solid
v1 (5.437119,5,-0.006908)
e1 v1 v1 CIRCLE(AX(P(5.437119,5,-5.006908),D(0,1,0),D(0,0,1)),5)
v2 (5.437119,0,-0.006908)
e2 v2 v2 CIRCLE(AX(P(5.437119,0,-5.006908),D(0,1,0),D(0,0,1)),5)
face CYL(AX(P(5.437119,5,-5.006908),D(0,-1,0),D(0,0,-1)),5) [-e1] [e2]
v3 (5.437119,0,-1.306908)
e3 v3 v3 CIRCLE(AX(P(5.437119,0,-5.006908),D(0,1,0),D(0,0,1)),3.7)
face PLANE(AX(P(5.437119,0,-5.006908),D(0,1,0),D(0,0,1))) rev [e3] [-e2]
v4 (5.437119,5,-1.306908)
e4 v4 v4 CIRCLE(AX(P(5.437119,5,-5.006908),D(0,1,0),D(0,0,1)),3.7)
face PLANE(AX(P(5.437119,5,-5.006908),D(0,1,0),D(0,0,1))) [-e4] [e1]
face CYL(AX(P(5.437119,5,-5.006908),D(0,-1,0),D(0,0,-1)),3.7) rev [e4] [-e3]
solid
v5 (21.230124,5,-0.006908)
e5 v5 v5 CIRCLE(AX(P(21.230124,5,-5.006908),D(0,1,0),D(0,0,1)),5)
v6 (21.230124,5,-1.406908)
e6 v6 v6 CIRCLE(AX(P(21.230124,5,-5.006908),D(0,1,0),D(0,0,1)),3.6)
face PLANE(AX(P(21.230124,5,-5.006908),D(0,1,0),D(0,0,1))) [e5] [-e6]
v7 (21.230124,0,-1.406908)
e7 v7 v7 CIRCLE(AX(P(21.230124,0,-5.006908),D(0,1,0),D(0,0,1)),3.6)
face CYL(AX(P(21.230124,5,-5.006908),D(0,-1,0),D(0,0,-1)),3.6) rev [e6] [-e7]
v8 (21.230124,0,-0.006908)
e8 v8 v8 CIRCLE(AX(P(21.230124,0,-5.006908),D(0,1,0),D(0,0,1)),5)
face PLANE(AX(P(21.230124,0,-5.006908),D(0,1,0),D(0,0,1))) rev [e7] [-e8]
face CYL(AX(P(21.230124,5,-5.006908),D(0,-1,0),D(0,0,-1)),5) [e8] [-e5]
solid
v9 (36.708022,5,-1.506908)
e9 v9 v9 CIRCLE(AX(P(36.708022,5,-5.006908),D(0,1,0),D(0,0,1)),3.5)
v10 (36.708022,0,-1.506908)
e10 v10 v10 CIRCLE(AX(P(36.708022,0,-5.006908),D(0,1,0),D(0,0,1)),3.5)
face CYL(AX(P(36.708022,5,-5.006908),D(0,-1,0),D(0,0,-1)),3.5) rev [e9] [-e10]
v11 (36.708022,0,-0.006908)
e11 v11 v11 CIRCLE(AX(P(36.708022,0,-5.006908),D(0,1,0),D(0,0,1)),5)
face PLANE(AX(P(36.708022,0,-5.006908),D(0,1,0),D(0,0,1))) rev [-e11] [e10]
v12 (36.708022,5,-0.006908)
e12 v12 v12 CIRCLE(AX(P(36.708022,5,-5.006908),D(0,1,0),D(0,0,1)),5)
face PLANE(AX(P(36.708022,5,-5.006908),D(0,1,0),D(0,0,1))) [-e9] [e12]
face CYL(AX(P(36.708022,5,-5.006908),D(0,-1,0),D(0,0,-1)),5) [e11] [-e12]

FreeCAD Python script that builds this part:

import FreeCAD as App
import Part
import Sketcher

V = App.Vector

doc = App.newDocument("Part")
body = doc.addObject("PartDesign::Body", "Body")

# Sketch on XZ plane
sketch1 = body.newObject("Sketcher::SketchObject", "Sketch")
sketch1.AttachmentSupport = (doc.getObject("XZ_Plane"), [""])
sketch1.MapMode = "FlatFace"
sketch1.addGeometry([
    Part.Circle(V(5.4, -5, 0), V(0, 0, 1), 5),
    Part.Circle(V(5.4, -5, 0), V(0, 0, 1), 3.7),
], False)
sketch1.addConstraint([
    Sketcher.Constraint("Coincident", 1, 3, 0, 3),
    Sketcher.Constraint("Diameter", 0, 10.0),
    Sketcher.Constraint("Diameter", 1, 7.4),
    Sketcher.Constraint("DistanceX", -1, 1, 0, 3, 5.437119),
    Sketcher.Constraint("DistanceY", 0, 3, -1, 1, 5.006908),
])
pad1 = body.newObject("PartDesign::Pad", "Pad")
pad1.Profile = sketch1
pad1.Length = 5
pad1.Reversed = True
body2 = doc.addObject("PartDesign::Body", "Body001")

# Sketch on XZ plane
sketch2 = body2.newObject("Sketcher::SketchObject", "Sketch001")
sketch2.AttachmentSupport = (doc.getObject("XZ_Plane001"), [""])
sketch2.MapMode = "FlatFace"
sketch2.addGeometry([
    Part.Circle(V(21.2, -5, 0), V(0, 0, 1), 5),
    Part.Circle(V(21.2, -5, 0), V(0, 0, 1), 3.6),
], False)
sketch2.addConstraint([
    Sketcher.Constraint("Coincident", 1, 3, 0, 3),
    Sketcher.Constraint("Diameter", 0, 10.0),
    Sketcher.Constraint("Diameter", 1, 7.2),
    Sketcher.Constraint("DistanceY", 0, 3, -1, 1, 5.006908),
    Sketcher.Constraint("DistanceX", -1, 1, 0, 3, 21.230124),
])
pad2 = body2.newObject("PartDesign::Pad", "Pad001")
pad2.Profile = sketch2
pad2.Length = 5
pad2.Reversed = True
body3 = doc.addObject("PartDesign::Body", "Body002")

# Sketch on XZ plane
sketch3 = body3.newObject("Sketcher::SketchObject", "Sketch002")
sketch3.AttachmentSupport = (doc.getObject("XZ_Plane002"), [""])
sketch3.MapMode = "FlatFace"
sketch3.addGeometry([
    Part.Circle(V(36.7, -5, 0), V(0, 0, 1), 5),
    Part.Circle(V(36.7, -5, 0), V(0, 0, 1), 3.5),
], False)
sketch3.addConstraint([
    Sketcher.Constraint("Coincident", 1, 3, 0, 3),
    Sketcher.Constraint("Diameter", 0, 10.0),
    Sketcher.Constraint("Diameter", 1, 7.0),
    Sketcher.Constraint("DistanceY", 0, 3, -1, 1, 5.006908),
    Sketcher.Constraint("DistanceX", -1, 1, 0, 3, 36.708022),
])
pad3 = body3.newObject("PartDesign::Pad", "Pad002")
pad3.Profile = sketch3
pad3.Length = 5
pad3.Reversed = True

doc.recompute()
